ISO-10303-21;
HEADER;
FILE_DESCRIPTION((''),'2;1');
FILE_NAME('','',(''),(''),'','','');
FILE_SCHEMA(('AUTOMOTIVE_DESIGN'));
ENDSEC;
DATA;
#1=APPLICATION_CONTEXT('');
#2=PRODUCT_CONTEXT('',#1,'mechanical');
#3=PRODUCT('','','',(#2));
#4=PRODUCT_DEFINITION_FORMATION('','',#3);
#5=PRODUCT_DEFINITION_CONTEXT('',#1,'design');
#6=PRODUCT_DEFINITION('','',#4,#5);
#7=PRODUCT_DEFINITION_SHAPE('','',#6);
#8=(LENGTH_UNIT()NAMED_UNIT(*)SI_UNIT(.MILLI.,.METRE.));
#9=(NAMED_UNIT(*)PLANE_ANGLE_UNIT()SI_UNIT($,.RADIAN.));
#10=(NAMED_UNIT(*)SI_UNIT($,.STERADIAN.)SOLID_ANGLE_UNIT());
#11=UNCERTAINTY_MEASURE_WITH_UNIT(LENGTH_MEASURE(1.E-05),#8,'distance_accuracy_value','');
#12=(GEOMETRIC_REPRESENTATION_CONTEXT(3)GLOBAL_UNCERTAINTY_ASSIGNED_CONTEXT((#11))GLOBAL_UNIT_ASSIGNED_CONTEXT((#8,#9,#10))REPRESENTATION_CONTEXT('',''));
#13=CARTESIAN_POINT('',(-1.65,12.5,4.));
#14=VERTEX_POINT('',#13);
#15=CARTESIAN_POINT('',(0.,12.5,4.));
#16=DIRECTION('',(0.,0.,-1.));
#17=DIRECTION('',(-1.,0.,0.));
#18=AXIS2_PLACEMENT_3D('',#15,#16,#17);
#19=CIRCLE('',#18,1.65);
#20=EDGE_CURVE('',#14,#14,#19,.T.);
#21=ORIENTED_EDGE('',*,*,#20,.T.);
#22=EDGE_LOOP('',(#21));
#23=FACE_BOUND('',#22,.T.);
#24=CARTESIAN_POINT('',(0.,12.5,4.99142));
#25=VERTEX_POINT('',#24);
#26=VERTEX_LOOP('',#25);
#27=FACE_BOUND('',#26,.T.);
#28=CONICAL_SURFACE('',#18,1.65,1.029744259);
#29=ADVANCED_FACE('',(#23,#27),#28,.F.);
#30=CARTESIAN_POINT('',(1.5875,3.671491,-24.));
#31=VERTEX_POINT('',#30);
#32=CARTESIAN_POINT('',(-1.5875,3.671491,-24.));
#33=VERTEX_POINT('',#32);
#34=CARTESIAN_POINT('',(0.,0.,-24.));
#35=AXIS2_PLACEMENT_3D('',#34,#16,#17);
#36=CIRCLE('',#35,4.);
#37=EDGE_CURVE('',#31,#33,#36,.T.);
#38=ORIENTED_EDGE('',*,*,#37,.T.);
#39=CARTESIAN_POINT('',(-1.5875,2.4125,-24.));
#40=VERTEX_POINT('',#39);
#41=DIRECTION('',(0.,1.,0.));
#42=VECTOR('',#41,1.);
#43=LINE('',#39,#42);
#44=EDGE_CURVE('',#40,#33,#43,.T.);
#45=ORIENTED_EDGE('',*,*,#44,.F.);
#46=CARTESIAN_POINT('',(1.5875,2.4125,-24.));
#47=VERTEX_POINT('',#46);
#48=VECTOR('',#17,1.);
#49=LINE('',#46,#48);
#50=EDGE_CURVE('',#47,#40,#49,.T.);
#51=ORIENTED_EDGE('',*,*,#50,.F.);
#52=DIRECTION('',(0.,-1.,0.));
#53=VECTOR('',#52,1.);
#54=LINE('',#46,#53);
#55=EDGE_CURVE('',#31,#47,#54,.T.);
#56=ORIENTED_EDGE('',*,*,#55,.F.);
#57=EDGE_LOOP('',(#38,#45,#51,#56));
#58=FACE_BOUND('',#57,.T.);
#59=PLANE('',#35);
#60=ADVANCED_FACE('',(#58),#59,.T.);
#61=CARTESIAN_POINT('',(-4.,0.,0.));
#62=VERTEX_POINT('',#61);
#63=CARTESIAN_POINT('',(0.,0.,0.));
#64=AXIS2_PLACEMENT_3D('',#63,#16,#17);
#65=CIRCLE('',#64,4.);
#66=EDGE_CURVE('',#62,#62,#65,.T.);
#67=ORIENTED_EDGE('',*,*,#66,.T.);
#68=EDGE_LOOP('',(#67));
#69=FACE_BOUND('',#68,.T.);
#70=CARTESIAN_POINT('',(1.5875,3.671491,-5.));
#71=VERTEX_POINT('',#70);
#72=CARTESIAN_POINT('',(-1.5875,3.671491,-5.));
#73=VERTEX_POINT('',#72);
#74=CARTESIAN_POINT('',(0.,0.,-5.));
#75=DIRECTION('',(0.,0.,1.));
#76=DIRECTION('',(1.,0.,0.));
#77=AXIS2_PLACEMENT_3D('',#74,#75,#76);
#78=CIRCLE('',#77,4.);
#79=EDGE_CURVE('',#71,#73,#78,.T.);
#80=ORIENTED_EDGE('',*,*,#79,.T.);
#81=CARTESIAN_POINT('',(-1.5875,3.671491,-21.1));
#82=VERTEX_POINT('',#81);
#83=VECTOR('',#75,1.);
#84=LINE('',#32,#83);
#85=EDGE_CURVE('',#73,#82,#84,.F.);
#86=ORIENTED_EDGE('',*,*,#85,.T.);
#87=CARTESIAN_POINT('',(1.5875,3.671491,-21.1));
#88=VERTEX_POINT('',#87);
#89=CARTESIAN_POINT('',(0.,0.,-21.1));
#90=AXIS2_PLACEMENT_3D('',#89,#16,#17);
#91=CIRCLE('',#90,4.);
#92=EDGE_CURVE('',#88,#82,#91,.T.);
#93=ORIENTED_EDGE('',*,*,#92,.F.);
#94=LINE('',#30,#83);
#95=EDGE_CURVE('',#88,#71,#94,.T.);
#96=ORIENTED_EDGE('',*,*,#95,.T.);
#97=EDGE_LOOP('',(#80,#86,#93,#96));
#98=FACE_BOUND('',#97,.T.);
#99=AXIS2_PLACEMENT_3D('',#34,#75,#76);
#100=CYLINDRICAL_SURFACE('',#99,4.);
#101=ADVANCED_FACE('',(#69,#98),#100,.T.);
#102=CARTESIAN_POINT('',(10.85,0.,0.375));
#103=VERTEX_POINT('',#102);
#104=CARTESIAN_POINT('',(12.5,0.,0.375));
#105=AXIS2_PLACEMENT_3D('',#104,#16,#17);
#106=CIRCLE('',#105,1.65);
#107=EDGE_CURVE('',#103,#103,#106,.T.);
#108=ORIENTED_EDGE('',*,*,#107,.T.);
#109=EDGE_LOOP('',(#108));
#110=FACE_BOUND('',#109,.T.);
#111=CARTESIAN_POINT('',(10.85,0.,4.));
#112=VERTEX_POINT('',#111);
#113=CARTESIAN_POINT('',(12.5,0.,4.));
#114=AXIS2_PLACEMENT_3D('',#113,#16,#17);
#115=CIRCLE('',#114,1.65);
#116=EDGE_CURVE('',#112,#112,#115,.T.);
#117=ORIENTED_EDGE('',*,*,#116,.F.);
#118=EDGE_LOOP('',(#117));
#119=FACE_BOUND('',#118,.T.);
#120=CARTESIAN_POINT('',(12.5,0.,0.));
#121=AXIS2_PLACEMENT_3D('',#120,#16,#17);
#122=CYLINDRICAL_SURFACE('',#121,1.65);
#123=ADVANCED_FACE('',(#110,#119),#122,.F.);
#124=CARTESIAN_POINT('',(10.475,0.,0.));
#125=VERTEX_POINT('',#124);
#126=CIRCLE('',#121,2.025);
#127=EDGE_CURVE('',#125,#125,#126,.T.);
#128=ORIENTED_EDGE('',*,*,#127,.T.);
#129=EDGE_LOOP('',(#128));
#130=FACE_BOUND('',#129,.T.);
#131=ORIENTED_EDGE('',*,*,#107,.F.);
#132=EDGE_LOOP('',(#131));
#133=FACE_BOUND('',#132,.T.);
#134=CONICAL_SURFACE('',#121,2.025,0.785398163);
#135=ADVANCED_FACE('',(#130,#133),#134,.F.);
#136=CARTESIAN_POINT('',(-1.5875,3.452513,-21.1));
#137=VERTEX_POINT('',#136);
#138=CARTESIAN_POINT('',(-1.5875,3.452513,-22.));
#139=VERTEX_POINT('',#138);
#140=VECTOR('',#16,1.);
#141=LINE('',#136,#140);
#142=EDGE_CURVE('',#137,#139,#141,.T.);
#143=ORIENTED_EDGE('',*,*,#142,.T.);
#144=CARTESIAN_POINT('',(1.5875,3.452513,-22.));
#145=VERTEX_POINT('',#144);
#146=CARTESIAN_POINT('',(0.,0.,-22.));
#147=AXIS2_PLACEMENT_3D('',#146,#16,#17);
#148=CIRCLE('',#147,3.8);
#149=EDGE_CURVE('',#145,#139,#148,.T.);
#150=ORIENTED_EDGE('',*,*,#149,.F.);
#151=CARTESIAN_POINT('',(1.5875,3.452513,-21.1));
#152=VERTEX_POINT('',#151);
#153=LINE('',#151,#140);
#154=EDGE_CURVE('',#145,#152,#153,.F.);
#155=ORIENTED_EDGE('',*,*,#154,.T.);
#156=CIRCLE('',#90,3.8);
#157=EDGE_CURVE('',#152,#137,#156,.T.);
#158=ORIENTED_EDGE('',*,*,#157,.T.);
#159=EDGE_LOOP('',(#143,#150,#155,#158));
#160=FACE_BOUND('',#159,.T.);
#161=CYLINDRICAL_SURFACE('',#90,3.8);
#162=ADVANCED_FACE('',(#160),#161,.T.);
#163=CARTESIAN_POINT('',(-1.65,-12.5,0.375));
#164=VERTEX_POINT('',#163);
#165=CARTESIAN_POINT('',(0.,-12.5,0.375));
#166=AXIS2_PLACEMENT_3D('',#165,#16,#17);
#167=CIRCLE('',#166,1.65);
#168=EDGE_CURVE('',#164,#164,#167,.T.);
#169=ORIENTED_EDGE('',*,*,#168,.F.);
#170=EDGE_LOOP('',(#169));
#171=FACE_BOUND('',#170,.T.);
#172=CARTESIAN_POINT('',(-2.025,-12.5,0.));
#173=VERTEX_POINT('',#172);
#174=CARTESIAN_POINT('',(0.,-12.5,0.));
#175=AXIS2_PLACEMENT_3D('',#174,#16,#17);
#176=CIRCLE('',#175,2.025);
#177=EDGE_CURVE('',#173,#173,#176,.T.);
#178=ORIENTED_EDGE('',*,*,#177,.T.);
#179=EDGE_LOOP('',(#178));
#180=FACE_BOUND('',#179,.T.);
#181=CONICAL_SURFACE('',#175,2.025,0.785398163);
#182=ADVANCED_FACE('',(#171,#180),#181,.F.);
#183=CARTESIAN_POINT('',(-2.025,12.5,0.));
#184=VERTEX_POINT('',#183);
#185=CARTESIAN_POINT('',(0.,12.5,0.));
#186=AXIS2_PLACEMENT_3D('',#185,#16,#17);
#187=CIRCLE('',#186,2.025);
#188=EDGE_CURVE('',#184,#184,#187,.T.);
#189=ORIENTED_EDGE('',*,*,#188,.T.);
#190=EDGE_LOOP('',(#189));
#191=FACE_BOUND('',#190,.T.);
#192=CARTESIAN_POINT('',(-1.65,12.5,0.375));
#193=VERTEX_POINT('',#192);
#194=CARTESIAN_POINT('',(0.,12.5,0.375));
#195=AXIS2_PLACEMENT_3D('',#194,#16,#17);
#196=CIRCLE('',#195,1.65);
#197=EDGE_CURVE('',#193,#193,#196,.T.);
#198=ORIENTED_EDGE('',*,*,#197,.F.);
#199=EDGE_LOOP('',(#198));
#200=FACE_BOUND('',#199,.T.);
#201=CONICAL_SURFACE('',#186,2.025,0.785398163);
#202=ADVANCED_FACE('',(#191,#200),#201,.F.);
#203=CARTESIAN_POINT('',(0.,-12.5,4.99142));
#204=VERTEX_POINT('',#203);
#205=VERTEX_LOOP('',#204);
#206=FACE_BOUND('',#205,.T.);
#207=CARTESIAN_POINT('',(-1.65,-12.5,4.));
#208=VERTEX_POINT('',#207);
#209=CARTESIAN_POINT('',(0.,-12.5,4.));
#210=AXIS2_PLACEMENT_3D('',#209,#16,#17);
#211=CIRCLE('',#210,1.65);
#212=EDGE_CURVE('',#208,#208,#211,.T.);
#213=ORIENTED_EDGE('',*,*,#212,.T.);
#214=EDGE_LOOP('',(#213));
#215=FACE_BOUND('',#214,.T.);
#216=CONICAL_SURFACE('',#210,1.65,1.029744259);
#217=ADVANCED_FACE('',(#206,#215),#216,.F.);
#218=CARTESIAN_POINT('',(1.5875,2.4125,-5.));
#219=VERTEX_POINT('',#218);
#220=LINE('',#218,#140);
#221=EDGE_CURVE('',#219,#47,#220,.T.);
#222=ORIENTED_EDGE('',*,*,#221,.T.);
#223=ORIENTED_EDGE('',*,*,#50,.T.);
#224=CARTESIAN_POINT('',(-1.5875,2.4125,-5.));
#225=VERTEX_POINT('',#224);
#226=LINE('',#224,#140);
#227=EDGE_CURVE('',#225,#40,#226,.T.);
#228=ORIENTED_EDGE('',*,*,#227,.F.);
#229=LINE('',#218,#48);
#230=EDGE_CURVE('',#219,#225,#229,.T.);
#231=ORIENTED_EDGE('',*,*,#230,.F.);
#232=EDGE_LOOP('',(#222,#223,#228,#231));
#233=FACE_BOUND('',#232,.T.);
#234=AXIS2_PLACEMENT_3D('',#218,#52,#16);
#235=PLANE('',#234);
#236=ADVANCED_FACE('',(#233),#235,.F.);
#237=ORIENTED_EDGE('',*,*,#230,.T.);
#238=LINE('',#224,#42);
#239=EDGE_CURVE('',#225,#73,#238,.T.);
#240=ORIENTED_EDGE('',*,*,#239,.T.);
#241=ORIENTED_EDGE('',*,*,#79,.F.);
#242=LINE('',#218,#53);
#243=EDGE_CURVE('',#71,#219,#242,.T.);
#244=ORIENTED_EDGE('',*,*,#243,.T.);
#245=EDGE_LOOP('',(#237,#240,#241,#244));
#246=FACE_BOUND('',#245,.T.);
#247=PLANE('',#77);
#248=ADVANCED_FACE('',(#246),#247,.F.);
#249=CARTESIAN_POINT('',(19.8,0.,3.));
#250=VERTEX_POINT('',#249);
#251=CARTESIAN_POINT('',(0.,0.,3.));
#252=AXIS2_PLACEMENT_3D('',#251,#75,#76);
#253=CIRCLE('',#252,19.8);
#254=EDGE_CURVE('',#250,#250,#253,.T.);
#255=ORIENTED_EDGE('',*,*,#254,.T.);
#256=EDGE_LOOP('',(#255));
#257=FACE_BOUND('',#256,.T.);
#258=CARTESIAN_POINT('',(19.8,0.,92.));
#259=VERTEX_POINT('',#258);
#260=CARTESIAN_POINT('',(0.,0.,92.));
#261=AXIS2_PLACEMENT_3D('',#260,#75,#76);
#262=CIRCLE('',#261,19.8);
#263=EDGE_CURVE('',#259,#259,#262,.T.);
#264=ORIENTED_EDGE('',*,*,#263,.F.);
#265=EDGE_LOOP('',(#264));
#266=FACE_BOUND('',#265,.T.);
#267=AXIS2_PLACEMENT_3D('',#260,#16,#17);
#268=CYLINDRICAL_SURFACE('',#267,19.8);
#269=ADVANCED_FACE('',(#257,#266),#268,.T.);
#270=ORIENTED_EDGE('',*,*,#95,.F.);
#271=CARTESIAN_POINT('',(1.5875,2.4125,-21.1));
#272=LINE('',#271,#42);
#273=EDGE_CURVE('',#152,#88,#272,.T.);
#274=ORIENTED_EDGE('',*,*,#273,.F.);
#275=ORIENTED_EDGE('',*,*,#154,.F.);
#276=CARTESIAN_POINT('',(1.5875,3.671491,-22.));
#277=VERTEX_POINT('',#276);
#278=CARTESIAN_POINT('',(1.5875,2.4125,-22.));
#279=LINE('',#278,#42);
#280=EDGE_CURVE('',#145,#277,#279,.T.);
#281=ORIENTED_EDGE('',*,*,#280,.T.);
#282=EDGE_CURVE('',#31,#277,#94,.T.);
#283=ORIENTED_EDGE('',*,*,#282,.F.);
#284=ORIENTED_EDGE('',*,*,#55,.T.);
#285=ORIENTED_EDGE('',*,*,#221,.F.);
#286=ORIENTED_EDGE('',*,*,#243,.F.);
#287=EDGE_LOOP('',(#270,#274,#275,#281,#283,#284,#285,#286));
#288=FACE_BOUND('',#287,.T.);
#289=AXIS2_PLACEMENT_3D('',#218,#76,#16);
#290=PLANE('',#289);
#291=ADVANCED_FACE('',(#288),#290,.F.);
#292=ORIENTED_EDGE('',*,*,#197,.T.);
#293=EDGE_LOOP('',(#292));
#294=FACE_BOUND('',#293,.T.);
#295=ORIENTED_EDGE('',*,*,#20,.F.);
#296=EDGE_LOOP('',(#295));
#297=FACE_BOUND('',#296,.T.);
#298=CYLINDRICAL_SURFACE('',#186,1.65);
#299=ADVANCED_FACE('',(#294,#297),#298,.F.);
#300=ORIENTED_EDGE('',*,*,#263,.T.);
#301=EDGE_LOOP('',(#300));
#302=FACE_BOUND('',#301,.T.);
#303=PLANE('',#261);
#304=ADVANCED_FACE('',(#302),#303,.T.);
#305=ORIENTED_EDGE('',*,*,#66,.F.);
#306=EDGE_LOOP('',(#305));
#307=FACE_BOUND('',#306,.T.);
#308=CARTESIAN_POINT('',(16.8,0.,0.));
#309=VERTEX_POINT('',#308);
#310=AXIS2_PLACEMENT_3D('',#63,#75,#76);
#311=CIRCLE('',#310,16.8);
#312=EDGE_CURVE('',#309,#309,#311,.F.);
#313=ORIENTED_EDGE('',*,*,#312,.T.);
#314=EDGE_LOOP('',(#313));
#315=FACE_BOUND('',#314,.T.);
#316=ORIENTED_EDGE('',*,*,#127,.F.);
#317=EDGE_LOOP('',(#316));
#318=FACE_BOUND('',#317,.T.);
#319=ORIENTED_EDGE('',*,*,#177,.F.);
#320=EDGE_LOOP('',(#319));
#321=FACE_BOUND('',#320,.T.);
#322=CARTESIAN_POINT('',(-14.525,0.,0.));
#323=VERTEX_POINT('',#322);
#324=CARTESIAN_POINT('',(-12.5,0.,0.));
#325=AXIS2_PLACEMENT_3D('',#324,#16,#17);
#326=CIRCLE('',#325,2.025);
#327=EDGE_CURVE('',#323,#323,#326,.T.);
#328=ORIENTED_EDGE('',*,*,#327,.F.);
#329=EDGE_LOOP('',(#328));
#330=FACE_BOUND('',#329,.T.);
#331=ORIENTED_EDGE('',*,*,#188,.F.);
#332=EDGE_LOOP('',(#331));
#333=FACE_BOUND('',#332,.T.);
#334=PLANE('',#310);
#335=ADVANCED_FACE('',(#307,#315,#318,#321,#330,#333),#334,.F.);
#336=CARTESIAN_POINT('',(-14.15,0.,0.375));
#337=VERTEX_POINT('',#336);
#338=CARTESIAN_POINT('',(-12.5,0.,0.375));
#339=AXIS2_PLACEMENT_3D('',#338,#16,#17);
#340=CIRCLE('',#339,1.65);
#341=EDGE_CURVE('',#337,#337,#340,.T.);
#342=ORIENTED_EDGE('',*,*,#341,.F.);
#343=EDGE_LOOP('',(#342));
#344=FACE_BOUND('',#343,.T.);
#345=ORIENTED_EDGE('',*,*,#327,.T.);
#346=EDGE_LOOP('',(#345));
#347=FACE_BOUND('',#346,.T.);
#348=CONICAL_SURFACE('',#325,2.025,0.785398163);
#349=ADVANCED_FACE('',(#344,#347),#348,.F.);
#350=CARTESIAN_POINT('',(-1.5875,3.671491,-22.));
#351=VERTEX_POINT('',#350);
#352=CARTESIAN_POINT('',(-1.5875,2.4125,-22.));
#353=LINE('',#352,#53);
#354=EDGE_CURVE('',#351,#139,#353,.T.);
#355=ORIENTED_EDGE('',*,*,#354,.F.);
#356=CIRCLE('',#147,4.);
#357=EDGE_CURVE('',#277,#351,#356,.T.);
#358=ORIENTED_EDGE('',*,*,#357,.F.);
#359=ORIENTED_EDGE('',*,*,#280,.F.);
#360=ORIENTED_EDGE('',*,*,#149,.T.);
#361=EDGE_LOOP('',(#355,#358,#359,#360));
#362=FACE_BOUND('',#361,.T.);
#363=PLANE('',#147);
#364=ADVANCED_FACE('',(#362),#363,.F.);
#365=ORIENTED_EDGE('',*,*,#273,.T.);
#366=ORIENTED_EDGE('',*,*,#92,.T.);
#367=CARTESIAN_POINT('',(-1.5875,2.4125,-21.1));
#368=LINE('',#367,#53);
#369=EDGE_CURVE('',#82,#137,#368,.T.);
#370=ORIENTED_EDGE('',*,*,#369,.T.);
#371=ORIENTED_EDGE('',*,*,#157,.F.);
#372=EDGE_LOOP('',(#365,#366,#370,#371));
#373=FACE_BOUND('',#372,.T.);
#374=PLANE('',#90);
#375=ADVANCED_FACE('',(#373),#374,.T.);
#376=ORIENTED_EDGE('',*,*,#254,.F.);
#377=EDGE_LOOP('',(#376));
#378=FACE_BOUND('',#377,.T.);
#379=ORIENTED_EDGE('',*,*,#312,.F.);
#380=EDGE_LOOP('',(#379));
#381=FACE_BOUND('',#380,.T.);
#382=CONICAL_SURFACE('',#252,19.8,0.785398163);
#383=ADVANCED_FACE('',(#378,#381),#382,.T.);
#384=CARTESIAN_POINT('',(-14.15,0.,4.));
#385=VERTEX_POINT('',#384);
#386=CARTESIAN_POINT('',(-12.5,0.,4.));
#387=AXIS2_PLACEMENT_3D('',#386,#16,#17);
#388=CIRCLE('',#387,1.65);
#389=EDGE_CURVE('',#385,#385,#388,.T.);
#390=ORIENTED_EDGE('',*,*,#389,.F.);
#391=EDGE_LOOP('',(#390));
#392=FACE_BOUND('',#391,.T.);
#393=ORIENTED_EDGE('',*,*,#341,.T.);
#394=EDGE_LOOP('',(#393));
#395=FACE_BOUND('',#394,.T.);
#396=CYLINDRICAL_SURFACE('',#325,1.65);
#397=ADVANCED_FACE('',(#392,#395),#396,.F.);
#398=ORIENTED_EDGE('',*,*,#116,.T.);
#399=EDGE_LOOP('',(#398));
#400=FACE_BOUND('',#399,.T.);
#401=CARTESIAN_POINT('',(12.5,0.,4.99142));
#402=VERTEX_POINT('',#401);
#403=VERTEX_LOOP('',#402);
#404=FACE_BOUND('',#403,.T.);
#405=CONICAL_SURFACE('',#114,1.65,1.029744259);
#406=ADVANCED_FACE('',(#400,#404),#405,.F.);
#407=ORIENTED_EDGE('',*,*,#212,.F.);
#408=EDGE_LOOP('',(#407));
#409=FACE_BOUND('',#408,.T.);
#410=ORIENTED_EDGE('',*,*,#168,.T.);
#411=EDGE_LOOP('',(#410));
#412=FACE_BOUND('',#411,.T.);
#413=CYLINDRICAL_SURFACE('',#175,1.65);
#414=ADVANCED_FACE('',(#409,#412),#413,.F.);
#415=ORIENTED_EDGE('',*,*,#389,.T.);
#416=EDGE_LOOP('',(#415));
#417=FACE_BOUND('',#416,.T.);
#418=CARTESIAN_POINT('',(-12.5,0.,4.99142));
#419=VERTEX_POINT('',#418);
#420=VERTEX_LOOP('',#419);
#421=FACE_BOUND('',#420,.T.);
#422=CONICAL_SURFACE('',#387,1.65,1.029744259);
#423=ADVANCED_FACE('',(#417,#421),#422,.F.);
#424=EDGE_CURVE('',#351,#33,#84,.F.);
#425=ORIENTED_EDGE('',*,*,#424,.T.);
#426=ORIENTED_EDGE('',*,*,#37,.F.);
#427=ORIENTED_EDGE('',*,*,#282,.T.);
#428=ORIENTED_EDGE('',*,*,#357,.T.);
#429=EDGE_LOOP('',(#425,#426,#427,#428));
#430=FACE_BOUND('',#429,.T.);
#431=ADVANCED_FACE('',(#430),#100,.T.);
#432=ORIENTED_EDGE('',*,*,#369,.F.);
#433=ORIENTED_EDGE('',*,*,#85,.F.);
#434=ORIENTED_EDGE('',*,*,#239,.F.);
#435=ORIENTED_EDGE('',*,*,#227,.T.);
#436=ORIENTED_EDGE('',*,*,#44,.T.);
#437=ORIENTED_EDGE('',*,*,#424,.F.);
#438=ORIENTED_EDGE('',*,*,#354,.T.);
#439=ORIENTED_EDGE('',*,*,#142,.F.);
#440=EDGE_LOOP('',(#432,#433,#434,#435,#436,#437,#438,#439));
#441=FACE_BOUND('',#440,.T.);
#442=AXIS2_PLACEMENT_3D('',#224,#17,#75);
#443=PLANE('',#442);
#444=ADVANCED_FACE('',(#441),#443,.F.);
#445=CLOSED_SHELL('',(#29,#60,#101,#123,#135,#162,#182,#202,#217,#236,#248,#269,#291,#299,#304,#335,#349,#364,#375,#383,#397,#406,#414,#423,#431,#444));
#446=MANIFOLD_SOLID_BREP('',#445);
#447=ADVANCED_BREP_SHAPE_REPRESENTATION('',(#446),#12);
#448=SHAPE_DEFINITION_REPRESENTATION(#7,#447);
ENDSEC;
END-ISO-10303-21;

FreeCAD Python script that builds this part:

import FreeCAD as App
import Part
import Sketcher

V = App.Vector
Q = App.Units.Quantity


def edges_at(feature, points):
    """Names of the edges that pass closest to the given points."""
    edges = feature.Shape.Edges
    near = lambda p: min(range(len(edges)), key=lambda i: edges[i].distToShape(Part.Vertex(*p))[0])
    return sorted({f"Edge{near(p) + 1}" for p in points})


def add_polygon(sketch, points):
    """Adds a closed chain of lines whose ends are joined by coincident constraints."""
    first, n = sketch.GeometryCount, len(points)
    for a, b in zip(points, points[1:] + points[:1]):
        sketch.addGeometry(Part.LineSegment(App.Vector(*a, 0), App.Vector(*b, 0)), False)
    for i in range(n):
        sketch.addConstraint(Sketcher.Constraint("Coincident", first + i, 2, first + (i + 1) % n, 1))

doc = App.newDocument("Part")
params = doc.addObject("Spreadsheet::Sheet", "Params")
for row, (alias, value) in enumerate([
    ("sketch1_diameter", "39.6 mm"),
    ("pad1_length", "92 mm"),
    ("sketch2_diameter", "3.3 mm"),
    ("hole_diameter", "3.3 mm"),
    ("hole_depth", "4 mm"),
    ("hole_csink_diameter", "4.05 mm"),
    ("sketch3_diameter", "8 mm"),
    ("pad2_length", "24 mm"),
    ("chamfer_size", "3 mm"),
    ("pocket1_length", "19 mm"),
    ("sketch5_diameter", "8 mm"),
    ("sketch5_diameter2", "7.6 mm"),
    ("pocket2_length", "0.9 mm"),
], start=1):
    params.set(f"A{row}", alias)
    params.set(f"B{row}", "=" + value)
    params.setAlias(f"B{row}", alias)

body = doc.addObject("PartDesign::Body", "Body")

sketch1 = body.newObject("Sketcher::SketchObject", "Sketch")
sketch1.AttachmentSupport = (doc.getObject("XY_Plane"), [""])
sketch1.MapMode = "FlatFace"
sketch1.addGeometry(Part.Circle(V(0, 0, 0), V(0, 0, 1), 20), False)
sketch1.addConstraint([
    Sketcher.Constraint("Coincident", 0, 3, -1, 1),
    Sketcher.Constraint("Diameter", 0, Q("39.6 mm")),
])
sketch1.setExpression("Constraints[1]", "Params.sketch1_diameter")
pad1 = body.newObject("PartDesign::Pad", "Pad")
pad1.Profile = sketch1
pad1.setExpression("Length", "Params.pad1_length")

sketch2 = body.newObject("Sketcher::SketchObject", "Sketch001")
sketch2.AttachmentSupport = (doc.getObject("XY_Plane"), [""])
sketch2.MapMode = "FlatFace"
sketch2.addGeometry([
    Part.Circle(V(0, 12.5, 0), V(0, 0, 1), 1.6),
    Part.Circle(V(12.5, 0, 0), V(0, 0, 1), 1.6),
    Part.Circle(V(0, -12.5, 0), V(0, 0, 1), 1.6),
    Part.Circle(V(-12.5, 0, 0), V(0, 0, 1), 1.6),
], False)
sketch2.addConstraint([
    Sketcher.Constraint("Equal", 0, 1),
    Sketcher.Constraint("Equal", 1, 2),
    Sketcher.Constraint("Equal", 2, 3),
    Sketcher.Constraint("Symmetric", 0, 3, 2, 3, -1, 1),
    Sketcher.Constraint("Symmetric", 1, 3, 3, 3, -1, 1),
    Sketcher.Constraint("PointOnObject", 0, 3, -2),
    Sketcher.Constraint("PointOnObject", 1, 3, -1),
    Sketcher.Constraint("Diameter", 0, Q("3.3 mm")),
    Sketcher.Constraint("DistanceY", 2, 3, 0, 3, Q("25 mm")),
    Sketcher.Constraint("DistanceX", 3, 3, 1, 3, Q("25 mm")),
])
sketch2.setExpression("Constraints[7]", "Params.sketch2_diameter")
doc.recompute()
hole = body.newObject("PartDesign::Hole", "Hole")
hole.Profile = sketch2
hole.ThreadType = "None"
hole.setExpression("Diameter", "Params.hole_diameter")
hole.DepthType = "Dimension"
hole.setExpression("Depth", "Params.hole_depth")
hole.DrillPoint = "Angled"
hole.DrillPointAngle = 118
hole.HoleCutType = "Countersink"
hole.setExpression("HoleCutDiameter", "Params.hole_csink_diameter")
hole.HoleCutCountersinkAngle = 90
hole.Reversed = True

sketch3 = body.newObject("Sketcher::SketchObject", "Sketch002")
sketch3.AttachmentSupport = (doc.getObject("XY_Plane"), [""])
sketch3.MapMode = "FlatFace"
sketch3.addGeometry(Part.Circle(V(0, 0, 0), V(0, 0, 1), 4), False)
sketch3.addConstraint([
    Sketcher.Constraint("Coincident", 0, 3, -1, 1),
    Sketcher.Constraint("Diameter", 0, Q("8 mm")),
])
sketch3.setExpression("Constraints[1]", "Params.sketch3_diameter")
pad2 = body.newObject("PartDesign::Pad", "Pad001")
pad2.Profile = sketch3
pad2.setExpression("Length", "Params.pad2_length")
pad2.Reversed = True
doc.recompute()

chamfer = body.newObject("PartDesign::Chamfer", "Chamfer")
chamfer.Base = (pad2, edges_at(pad2, [(-19.8, 0, 0)]))
chamfer.setExpression("Size", "Params.chamfer_size")

sketch4 = body.newObject("Sketcher::SketchObject", "Sketch003")
sketch4.AttachmentSupport = (doc.getObject("XY_Plane"), [""])
sketch4.MapMode = "FlatFace"
sketch4.AttachmentOffset = App.Placement(V(0, 0, -24), App.Rotation())
add_polygon(sketch4, [(1.6, 5.6), (1.6, 2.4), (-1.6, 2.4), (-1.6, 5.6)])
sketch4.addConstraint([
    Sketcher.Constraint("Vertical", 0),
    Sketcher.Constraint("Horizontal", 1),
    Sketcher.Constraint("Vertical", 2),
    Sketcher.Constraint("Horizontal", 3),
    Sketcher.Constraint("Equal", 3, 0),
    Sketcher.Constraint("DistanceX", 1, 2, 1, 1, Q("3.175 mm")),
    Sketcher.Constraint("DistanceX", -1, 1, 0, 2, Q("1.5875 mm")),
    Sketcher.Constraint("DistanceY", -1, 1, 0, 2, Q("2.4125 mm")),
])
pocket1 = body.newObject("PartDesign::Pocket", "Pocket")
pocket1.Profile = sketch4
pocket1.setExpression("Length", "Params.pocket1_length")
pocket1.Reversed = True

sketch5 = body.newObject("Sketcher::SketchObject", "Sketch004")
sketch5.AttachmentSupport = (doc.getObject("XY_Plane"), [""])
sketch5.MapMode = "FlatFace"
sketch5.AttachmentOffset = App.Placement(V(0, 0, -21.1), App.Rotation())
sketch5.addGeometry([
    Part.Circle(V(0, 0, 0), V(0, 0, 1), 4),
    Part.Circle(V(0, 0, 0), V(0, 0, 1), 3.8),
], False)
sketch5.addConstraint([
    Sketcher.Constraint("Coincident", 0, 3, -1, 1),
    Sketcher.Constraint("Coincident", 1, 3, -1, 1),
    Sketcher.Constraint("Diameter", 0, Q("8 mm")),
    Sketcher.Constraint("Diameter", 1, Q("7.6 mm")),
])
sketch5.setExpression("Constraints[2]", "Params.sketch5_diameter")
sketch5.setExpression("Constraints[3]", "Params.sketch5_diameter2")
pocket2 = body.newObject("PartDesign::Pocket", "Pocket001")
pocket2.Profile = sketch5
pocket2.setExpression("Length", "Params.pocket2_length")

doc.recompute()
